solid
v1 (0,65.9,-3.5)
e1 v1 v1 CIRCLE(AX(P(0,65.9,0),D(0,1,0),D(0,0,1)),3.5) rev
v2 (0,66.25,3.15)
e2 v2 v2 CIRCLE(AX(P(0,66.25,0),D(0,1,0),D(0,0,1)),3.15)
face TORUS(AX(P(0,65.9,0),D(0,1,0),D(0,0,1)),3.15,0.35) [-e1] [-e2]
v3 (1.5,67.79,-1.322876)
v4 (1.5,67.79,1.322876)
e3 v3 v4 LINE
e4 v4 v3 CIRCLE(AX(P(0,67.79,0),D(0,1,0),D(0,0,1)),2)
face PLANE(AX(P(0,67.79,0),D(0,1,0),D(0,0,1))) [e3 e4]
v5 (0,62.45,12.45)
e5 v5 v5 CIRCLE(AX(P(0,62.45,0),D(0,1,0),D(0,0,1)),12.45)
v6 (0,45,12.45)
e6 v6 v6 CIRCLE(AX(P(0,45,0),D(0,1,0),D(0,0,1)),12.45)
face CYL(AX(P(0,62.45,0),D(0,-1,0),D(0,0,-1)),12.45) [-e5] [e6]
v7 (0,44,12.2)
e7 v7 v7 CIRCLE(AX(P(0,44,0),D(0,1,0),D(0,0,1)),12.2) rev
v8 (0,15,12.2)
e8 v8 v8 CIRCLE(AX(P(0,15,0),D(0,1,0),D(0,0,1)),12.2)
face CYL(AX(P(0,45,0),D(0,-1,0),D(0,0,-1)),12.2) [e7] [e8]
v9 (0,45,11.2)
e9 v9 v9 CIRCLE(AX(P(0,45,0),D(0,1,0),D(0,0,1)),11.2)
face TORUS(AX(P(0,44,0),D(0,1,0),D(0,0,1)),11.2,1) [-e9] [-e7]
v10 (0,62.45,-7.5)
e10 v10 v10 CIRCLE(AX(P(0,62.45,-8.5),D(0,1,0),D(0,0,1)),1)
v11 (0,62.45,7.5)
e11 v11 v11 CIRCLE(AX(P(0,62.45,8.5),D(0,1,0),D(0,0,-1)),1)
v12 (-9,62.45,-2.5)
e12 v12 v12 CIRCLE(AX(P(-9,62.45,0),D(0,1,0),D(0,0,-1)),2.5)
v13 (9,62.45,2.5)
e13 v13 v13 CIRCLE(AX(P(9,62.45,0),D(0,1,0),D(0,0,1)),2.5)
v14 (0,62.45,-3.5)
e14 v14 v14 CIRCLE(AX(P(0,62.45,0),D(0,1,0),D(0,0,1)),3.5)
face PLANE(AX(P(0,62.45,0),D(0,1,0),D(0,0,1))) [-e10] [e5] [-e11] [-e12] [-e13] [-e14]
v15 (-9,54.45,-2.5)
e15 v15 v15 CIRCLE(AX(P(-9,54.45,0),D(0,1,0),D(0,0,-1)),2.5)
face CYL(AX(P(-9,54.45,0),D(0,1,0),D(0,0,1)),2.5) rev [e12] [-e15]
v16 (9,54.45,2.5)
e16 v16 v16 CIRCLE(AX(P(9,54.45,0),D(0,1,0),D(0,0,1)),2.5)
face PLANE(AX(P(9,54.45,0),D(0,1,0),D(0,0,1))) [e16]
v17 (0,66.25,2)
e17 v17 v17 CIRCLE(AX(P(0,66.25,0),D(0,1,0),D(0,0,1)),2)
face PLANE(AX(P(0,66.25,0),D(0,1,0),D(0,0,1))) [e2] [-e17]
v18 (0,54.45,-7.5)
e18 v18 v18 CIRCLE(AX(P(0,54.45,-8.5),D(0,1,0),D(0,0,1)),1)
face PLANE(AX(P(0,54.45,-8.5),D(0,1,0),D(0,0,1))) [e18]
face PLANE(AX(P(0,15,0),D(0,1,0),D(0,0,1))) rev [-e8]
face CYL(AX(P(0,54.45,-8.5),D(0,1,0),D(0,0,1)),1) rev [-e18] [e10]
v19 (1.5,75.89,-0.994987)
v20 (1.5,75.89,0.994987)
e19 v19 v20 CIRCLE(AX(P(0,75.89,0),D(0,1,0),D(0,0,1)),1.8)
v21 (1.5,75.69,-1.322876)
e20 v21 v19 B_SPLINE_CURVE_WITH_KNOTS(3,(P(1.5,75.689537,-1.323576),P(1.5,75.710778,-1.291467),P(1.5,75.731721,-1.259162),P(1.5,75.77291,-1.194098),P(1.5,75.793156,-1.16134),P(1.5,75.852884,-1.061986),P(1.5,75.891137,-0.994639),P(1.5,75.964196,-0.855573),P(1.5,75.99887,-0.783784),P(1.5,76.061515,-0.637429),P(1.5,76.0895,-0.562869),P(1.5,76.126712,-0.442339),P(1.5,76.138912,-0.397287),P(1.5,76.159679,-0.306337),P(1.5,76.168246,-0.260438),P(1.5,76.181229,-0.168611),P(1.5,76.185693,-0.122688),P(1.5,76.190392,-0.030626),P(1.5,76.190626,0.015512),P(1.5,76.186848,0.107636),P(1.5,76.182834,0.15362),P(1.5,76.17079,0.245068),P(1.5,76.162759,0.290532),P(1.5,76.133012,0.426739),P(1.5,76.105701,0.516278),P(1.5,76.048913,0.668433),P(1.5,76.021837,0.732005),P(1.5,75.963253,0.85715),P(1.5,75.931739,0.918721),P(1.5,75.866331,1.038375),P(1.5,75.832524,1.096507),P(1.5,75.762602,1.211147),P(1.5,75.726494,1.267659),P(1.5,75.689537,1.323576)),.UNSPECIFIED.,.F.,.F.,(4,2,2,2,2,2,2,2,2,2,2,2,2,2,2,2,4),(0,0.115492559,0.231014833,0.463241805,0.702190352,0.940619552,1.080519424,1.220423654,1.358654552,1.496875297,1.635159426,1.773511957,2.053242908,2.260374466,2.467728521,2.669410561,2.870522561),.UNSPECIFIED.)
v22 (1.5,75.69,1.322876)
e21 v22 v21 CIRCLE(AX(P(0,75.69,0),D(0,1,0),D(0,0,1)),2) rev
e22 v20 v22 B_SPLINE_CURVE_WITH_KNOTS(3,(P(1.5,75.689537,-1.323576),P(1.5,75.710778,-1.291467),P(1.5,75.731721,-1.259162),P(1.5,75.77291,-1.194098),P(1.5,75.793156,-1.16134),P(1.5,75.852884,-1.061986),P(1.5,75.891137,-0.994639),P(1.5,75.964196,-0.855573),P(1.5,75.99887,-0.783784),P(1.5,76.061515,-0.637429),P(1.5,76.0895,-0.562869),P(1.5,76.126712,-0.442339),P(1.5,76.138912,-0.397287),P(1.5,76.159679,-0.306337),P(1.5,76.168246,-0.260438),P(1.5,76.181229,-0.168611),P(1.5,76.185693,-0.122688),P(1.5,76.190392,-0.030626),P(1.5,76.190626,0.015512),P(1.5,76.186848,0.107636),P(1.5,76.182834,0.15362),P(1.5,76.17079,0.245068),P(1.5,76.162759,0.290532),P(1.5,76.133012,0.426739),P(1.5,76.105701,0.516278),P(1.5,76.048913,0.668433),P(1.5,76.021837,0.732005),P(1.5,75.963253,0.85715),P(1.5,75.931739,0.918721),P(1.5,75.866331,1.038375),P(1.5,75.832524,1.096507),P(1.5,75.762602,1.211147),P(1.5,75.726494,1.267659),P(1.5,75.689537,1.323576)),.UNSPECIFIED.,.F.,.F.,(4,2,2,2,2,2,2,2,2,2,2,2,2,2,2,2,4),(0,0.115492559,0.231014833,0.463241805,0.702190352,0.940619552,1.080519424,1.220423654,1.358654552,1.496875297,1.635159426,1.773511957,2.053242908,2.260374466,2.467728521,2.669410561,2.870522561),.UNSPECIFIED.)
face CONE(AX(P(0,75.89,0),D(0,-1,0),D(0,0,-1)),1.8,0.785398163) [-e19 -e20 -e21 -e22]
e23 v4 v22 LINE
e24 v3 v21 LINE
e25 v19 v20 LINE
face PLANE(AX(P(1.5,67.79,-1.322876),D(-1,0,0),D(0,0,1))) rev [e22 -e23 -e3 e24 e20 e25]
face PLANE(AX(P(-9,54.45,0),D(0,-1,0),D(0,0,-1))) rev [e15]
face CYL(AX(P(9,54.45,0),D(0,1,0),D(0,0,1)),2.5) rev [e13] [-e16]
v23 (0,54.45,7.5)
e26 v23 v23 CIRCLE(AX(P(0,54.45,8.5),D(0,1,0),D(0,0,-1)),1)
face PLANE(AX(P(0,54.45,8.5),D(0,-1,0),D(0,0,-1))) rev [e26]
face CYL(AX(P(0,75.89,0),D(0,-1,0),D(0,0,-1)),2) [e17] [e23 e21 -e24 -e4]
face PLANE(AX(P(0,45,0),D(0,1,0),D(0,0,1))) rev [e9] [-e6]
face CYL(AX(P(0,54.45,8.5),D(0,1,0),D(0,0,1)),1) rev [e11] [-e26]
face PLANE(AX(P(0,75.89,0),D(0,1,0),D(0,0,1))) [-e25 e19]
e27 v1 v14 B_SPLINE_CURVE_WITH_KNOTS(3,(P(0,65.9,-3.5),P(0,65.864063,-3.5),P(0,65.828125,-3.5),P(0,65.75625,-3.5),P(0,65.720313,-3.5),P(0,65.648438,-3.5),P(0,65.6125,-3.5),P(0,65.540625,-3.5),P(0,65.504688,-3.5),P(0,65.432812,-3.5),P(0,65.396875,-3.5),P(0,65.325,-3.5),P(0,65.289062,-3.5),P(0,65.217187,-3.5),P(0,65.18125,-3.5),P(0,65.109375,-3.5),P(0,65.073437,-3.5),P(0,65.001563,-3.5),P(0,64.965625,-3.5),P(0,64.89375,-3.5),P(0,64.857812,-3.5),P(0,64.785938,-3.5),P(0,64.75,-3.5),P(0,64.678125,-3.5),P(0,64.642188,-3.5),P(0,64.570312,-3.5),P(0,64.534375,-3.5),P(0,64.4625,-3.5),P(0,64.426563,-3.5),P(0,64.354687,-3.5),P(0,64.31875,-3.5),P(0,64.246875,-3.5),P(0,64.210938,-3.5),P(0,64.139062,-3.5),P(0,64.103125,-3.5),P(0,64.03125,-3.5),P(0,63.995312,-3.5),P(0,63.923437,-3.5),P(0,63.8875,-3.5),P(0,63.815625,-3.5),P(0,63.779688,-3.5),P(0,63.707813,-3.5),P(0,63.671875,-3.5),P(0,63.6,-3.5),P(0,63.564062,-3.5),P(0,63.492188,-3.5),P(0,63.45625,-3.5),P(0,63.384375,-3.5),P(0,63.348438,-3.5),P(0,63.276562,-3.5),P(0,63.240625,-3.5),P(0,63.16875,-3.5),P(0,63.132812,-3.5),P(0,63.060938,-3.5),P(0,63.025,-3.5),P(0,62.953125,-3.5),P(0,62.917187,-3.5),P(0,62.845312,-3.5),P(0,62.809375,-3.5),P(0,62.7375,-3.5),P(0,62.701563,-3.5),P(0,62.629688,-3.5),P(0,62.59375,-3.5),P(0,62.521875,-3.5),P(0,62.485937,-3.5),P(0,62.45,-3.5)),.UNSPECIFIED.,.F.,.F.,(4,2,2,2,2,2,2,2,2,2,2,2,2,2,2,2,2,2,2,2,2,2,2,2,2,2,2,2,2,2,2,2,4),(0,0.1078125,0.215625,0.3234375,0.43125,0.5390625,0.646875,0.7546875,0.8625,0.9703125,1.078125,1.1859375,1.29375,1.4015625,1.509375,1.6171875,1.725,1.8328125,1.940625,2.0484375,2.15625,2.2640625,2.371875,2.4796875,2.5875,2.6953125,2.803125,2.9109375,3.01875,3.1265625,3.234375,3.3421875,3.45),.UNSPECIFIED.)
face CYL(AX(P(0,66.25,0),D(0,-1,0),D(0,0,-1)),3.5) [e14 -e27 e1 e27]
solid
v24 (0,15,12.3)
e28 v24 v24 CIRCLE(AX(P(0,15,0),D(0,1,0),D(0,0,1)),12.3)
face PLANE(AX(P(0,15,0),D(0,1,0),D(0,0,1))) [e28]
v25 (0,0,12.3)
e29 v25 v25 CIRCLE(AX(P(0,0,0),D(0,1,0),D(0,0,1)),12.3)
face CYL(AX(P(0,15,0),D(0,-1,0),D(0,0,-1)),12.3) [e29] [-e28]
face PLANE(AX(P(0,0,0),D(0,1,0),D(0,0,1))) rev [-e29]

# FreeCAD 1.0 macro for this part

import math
import FreeCAD as App
import Part
import Sketcher
from FreeCAD import Vector
Q = App.Units.Quantity


def edges_at(feature, points):
    """Names of the edges that pass closest to the given points."""
    edges = feature.Shape.Edges
    near = lambda p: min(range(len(edges)), key=lambda i: edges[i].distToShape(Part.Vertex(*p))[0])
    return sorted({f"Edge{near(p) + 1}" for p in points})

doc = App.newDocument("Part")
body = doc.addObject("PartDesign::Body", "Body")

# Sketch on XZ plane
sketch1 = body.newObject("Sketcher::SketchObject", "Sketch")
sketch1.AttachmentSupport = (doc.getObject("XZ_Plane"), [""])
sketch1.MapMode = "FlatFace"
sketch1.addGeometry(Part.Circle(Vector(0, 0, 0), Vector(0, 0, 1), 12), False)
sketch1.addConstraint([
    Sketcher.Constraint("Coincident", 0, 3, -1, 1),
    Sketcher.Constraint("Diameter", 0, Q("24.6 mm")),
])
pad1 = body.newObject("PartDesign::Pad", "Pad")
pad1.Profile = sketch1
pad1.Length = 15
pad1.Reversed = True
body2 = doc.addObject("PartDesign::Body", "Body001")

# Sketch on XZ plane
sketch2 = body2.newObject("Sketcher::SketchObject", "Sketch001")
sketch2.AttachmentSupport = (doc.getObject("XZ_Plane001"), [""])
sketch2.MapMode = "FlatFace"
sketch2.AttachmentOffset = App.Placement(Vector(0, 0, -15), App.Rotation())
sketch2.addGeometry(Part.Circle(Vector(0, 0, 0), Vector(0, 0, 1), 12), False)
sketch2.addConstraint([
    Sketcher.Constraint("Coincident", 0, 3, -1, 1),
    Sketcher.Constraint("Diameter", 0, Q("24.4 mm")),
])
pad2 = body2.newObject("PartDesign::Pad", "Pad001")
pad2.Profile = sketch2
pad2.Length = 30
pad2.Reversed = True
doc.recompute()

fillet = body2.newObject("PartDesign::Fillet", "Fillet")
fillet.Base = (pad2, edges_at(pad2, [(0, 45, -12.2)]))
fillet.Radius = 1

# Sketch on XZ plane
sketch3 = body2.newObject("Sketcher::SketchObject", "Sketch002")
sketch3.AttachmentSupport = (doc.getObject("XZ_Plane001"), [""])
sketch3.MapMode = "FlatFace"
sketch3.AttachmentOffset = App.Placement(Vector(0, 0, -45), App.Rotation())
sketch3.addGeometry(Part.Circle(Vector(0, 0, 0), Vector(0, 0, 1), 12), False)
sketch3.addConstraint([
    Sketcher.Constraint("Coincident", 0, 3, -1, 1),
    Sketcher.Constraint("Diameter", 0, Q("24.9 mm")),
])
pad3 = body2.newObject("PartDesign::Pad", "Pad002")
pad3.Profile = sketch3
pad3.Length = 17.45
pad3.Reversed = True

# Sketch on XZ plane
sketch4 = body2.newObject("Sketcher::SketchObject", "Sketch003")
sketch4.AttachmentSupport = (doc.getObject("XZ_Plane001"), [""])
sketch4.MapMode = "FlatFace"
sketch4.AttachmentOffset = App.Placement(Vector(0, 0, -62.45), App.Rotation())
sketch4.addGeometry([
    Part.Circle(Vector(0, -8.5, 0), Vector(0, 0, 1), 1),
    Part.Circle(Vector(0, 8.5, 0), Vector(0, 0, 1), 1),
    Part.Circle(Vector(9, 0, 0), Vector(0, 0, 1), 2.5),
    Part.Circle(Vector(-9, 0, 0), Vector(0, 0, 1), 2.5),
], False)
sketch4.addConstraint([
    Sketcher.Constraint("Equal", 0, 1),
    Sketcher.Constraint("Equal", 2, 3),
    Sketcher.Constraint("Symmetric", 0, 3, 1, 3, -1, 1),
    Sketcher.Constraint("Symmetric", 2, 3, 3, 3, -1, 1),
    Sketcher.Constraint("PointOnObject", 0, 3, -2),
    Sketcher.Constraint("PointOnObject", 2, 3, -1),
    Sketcher.Constraint("Diameter", 0, Q("2 mm")),
    Sketcher.Constraint("Diameter", 2, Q("5 mm")),
    Sketcher.Constraint("DistanceX", -1, 1, 2, 3, Q("9 mm")),
    Sketcher.Constraint("DistanceY", 0, 3, 1, 3, Q("17 mm")),
])
pocket1 = body2.newObject("PartDesign::Pocket", "Pocket")
pocket1.Profile = sketch4
pocket1.Length = 8
pocket1.Reversed = True

# Sketch on XZ plane
sketch5 = body2.newObject("Sketcher::SketchObject", "Sketch004")
sketch5.AttachmentSupport = (doc.getObject("XZ_Plane001"), [""])
sketch5.MapMode = "FlatFace"
sketch5.AttachmentOffset = App.Placement(Vector(0, 0, -62.45), App.Rotation())
sketch5.addGeometry(Part.Circle(Vector(0, 0, 0), Vector(0, 0, 1), 3.5), False)
sketch5.addConstraint([
    Sketcher.Constraint("Coincident", 0, 3, -1, 1),
    Sketcher.Constraint("Diameter", 0, Q("7 mm")),
])
pad4 = body2.newObject("PartDesign::Pad", "Pad003")
pad4.Profile = sketch5
pad4.Length = 3.8
pad4.Reversed = True
doc.recompute()

fillet2 = body2.newObject("PartDesign::Fillet", "Fillet001")
fillet2.Base = (pad4, edges_at(pad4, [(0, 66.25, 3.5)]))
fillet2.Radius = 0.35

# Sketch on XZ plane
sketch6 = body2.newObject("Sketcher::SketchObject", "Sketch005")
sketch6.AttachmentSupport = (doc.getObject("XZ_Plane001"), [""])
sketch6.MapMode = "FlatFace"
sketch6.AttachmentOffset = App.Placement(Vector(0, 0, -66.25), App.Rotation())
sketch6.addGeometry(Part.Circle(Vector(0, 0, 0), Vector(0, 0, 1), 2), False)
sketch6.addConstraint([
    Sketcher.Constraint("Coincident", 0, 3, -1, 1),
    Sketcher.Constraint("Diameter", 0, Q("4 mm")),
])
pad5 = body2.newObject("PartDesign::Pad", "Pad004")
pad5.Profile = sketch6
pad5.Length = 9.64
pad5.Reversed = True
doc.recompute()

chamfer = body2.newObject("PartDesign::Chamfer", "Chamfer")
chamfer.Base = (pad5, edges_at(pad5, [(0, 75.89, -2)]))
chamfer.Size = 0.2

# Sketch on XZ plane
sketch7 = body2.newObject("Sketcher::SketchObject", "Sketch006")
sketch7.AttachmentSupport = (doc.getObject("XZ_Plane001"), [""])
sketch7.MapMode = "FlatFace"
sketch7.AttachmentOffset = App.Placement(Vector(0, 0, -75.89), App.Rotation())
sketch7.addGeometry([
    Part.LineSegment(Vector(1.5, -1.3, 0), Vector(1.5, 1.3, 0)),
    Part.ArcOfCircle(Part.Circle(Vector(0, 0, 0), Vector(0, 0, 1), 2), math.radians(-41), math.radians(41)),
], False)
sketch7.addConstraint([
    Sketcher.Constraint("Coincident", 0, 1, 1, 1),
    Sketcher.Constraint("Coincident", 1, 2, 0, 2),
    Sketcher.Constraint("Vertical", 0),
    Sketcher.Constraint("Coincident", 1, 3, -1, 1),
    Sketcher.Constraint("Radius", 1, Q("2 mm")),
    Sketcher.Constraint("DistanceX", -1, 1, 0, 1, Q("1.5 mm")),
])
pocket2 = body2.newObject("PartDesign::Pocket", "Pocket001")
pocket2.Profile = sketch7
pocket2.Length = 8.1
pocket2.Reversed = True

doc.recompute()
